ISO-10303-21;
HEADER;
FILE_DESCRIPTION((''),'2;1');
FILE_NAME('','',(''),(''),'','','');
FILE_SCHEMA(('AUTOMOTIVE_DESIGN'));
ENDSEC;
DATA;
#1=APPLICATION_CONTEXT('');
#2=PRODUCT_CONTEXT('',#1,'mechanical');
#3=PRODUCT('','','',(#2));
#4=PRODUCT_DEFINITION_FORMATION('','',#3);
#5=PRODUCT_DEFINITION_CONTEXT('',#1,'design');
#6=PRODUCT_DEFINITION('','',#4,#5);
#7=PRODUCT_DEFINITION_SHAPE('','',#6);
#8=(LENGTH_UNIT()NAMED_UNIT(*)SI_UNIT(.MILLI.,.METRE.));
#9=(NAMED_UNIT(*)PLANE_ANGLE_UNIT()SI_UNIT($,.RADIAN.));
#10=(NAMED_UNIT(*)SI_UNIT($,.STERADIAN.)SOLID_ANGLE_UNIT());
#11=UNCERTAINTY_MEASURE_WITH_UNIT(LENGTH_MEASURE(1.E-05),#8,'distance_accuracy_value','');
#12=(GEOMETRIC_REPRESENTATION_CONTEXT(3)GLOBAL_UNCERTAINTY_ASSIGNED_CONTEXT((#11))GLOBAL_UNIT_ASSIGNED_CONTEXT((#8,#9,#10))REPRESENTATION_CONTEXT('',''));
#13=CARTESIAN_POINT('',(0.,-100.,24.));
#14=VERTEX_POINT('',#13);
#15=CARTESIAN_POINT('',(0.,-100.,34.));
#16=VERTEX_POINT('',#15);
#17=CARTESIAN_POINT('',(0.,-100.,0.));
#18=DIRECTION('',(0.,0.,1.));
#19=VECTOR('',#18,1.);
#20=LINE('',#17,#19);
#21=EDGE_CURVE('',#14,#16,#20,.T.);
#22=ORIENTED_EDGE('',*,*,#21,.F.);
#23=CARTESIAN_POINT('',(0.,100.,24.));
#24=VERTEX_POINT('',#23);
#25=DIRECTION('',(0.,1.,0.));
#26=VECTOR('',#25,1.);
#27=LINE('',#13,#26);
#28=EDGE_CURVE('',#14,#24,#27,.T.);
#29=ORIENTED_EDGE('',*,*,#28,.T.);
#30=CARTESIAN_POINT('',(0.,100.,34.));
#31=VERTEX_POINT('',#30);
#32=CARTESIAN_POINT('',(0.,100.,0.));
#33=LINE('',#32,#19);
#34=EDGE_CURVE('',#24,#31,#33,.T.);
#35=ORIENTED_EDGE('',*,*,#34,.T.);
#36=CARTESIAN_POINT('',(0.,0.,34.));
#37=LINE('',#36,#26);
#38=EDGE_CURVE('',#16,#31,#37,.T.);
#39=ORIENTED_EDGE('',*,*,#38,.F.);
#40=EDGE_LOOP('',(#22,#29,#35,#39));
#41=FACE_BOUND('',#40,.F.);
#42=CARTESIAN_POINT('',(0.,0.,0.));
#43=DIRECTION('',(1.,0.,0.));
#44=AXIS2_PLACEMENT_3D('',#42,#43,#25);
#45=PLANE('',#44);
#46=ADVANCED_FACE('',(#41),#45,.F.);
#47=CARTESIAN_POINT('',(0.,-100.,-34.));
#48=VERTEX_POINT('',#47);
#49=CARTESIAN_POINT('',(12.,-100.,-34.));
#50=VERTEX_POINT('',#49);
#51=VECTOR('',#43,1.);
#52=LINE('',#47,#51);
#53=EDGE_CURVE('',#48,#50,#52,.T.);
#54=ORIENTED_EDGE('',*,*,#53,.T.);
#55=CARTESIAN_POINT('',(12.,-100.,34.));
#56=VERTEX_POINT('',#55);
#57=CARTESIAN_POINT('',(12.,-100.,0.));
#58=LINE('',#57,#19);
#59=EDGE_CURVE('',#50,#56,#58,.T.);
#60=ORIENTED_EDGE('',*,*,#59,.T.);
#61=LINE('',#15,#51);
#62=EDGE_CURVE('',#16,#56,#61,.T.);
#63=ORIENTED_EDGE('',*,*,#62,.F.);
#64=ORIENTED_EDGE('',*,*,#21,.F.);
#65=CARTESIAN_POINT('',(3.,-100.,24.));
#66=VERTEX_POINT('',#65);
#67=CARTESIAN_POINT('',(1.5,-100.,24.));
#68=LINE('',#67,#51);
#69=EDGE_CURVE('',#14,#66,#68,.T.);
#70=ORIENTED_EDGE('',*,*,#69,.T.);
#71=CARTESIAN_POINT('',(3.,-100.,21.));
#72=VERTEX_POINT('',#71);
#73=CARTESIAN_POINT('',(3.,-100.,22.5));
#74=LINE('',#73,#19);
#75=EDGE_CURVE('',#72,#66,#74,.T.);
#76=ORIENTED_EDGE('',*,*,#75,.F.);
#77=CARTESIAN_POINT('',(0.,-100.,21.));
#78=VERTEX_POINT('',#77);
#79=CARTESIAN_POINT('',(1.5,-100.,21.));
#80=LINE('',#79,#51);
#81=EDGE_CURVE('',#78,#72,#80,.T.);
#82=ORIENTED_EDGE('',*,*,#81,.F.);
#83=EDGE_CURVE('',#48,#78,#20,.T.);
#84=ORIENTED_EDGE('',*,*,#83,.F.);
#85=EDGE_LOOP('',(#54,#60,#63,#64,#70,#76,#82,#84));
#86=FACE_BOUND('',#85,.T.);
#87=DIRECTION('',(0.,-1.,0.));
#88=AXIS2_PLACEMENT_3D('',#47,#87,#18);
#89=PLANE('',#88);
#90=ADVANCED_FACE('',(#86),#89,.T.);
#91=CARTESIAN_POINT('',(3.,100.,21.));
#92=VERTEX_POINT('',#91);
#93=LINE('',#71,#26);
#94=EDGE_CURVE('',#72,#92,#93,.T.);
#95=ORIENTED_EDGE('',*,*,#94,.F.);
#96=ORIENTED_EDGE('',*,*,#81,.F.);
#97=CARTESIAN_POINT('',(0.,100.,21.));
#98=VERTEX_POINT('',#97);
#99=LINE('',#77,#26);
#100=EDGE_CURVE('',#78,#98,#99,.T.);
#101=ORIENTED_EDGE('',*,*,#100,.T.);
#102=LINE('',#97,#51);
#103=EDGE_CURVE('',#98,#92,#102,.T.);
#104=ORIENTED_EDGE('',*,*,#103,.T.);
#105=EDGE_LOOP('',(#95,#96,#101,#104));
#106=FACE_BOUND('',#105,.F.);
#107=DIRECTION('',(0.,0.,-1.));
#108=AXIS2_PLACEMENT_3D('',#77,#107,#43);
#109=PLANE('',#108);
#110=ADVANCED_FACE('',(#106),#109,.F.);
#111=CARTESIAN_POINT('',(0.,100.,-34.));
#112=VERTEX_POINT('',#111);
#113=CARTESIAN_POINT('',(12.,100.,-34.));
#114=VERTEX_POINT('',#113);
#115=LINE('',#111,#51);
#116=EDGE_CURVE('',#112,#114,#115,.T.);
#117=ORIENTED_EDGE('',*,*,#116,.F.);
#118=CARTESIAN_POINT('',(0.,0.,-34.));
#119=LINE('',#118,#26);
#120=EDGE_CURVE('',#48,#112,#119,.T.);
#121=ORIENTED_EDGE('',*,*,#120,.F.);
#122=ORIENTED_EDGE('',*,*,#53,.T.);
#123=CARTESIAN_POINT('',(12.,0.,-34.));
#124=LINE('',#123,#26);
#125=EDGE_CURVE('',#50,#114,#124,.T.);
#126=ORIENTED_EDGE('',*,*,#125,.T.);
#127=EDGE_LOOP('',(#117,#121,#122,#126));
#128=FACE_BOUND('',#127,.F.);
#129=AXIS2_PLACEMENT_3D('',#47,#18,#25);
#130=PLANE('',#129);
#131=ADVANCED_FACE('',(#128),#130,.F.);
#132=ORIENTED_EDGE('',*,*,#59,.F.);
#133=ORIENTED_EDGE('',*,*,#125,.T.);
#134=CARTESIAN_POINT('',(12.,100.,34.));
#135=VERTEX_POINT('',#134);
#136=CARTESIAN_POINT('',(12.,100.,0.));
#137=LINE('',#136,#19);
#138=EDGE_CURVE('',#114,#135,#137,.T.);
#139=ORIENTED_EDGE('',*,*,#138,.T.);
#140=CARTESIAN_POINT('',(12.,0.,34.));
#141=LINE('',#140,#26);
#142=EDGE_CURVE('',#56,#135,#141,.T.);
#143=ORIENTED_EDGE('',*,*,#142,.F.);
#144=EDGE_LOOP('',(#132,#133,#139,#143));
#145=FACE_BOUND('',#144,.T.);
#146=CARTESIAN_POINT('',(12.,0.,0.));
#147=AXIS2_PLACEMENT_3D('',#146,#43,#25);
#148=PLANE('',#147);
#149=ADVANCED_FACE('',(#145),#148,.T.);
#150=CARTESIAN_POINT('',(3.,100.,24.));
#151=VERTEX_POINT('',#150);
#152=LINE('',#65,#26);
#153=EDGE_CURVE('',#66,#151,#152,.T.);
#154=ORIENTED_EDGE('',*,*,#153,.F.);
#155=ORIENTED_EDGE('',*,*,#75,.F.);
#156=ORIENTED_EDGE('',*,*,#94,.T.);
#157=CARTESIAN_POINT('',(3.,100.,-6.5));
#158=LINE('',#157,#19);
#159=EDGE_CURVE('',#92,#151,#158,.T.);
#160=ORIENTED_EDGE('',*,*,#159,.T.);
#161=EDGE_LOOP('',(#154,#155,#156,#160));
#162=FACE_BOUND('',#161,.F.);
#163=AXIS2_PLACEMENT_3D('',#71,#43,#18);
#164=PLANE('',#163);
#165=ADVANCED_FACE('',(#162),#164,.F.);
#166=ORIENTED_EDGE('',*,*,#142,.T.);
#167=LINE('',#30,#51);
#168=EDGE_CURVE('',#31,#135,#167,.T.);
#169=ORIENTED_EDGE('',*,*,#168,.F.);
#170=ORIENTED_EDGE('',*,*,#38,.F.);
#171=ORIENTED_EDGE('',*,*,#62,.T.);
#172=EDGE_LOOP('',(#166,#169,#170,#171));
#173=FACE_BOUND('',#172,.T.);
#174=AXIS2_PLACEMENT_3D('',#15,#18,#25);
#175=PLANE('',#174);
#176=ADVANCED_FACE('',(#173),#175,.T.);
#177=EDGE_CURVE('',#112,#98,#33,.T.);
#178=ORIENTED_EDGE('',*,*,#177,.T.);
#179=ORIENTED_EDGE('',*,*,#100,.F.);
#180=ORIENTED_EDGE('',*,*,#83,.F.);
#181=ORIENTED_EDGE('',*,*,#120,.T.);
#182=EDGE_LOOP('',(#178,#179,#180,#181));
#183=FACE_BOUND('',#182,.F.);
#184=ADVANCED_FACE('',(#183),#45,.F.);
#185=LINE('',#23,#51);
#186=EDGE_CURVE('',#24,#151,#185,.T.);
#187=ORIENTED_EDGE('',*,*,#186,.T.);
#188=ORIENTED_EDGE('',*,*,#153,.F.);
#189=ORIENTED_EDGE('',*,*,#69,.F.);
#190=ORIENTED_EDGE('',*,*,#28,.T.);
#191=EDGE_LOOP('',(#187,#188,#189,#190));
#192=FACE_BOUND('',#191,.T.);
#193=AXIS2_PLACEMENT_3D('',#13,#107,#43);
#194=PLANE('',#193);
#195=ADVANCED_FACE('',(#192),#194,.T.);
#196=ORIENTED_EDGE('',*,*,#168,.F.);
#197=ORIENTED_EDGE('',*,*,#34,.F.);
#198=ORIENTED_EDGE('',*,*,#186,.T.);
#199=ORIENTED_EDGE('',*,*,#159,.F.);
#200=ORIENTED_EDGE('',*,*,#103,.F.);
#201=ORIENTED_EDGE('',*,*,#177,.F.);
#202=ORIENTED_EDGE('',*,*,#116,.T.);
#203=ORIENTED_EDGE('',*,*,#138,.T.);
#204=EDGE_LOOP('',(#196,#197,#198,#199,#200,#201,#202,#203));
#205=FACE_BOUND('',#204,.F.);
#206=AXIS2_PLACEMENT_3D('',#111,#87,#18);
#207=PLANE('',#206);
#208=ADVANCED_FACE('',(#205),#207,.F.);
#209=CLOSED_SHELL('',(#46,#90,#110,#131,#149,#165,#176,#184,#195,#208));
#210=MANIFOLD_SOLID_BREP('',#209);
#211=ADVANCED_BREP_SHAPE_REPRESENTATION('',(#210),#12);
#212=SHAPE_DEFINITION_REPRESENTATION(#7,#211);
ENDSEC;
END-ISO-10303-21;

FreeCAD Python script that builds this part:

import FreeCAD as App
import Part
import Sketcher
from FreeCAD import Vector
Q = App.Units.Quantity

doc = App.newDocument("Part")
body = doc.addObject("PartDesign::Body", "Body")

# Sketch on YZ plane
sketch1 = body.newObject("Sketcher::SketchObject", "Sketch")
sketch1.AttachmentSupport = (doc.getObject("YZ_Plane"), [""])
sketch1.MapMode = "FlatFace"
sketch1.addGeometry([
    Part.LineSegment(Vector(-100, 34, 0), Vector(-100, -34, 0)),
    Part.LineSegment(Vector(-100, -34, 0), Vector(100, -34, 0)),
    Part.LineSegment(Vector(100, -34, 0), Vector(100, 34, 0)),
    Part.LineSegment(Vector(100, 34, 0), Vector(-100, 34, 0)),
], False)
sketch1.addConstraint([
    Sketcher.Constraint("Coincident", 0, 2, 1, 1),
    Sketcher.Constraint("Coincident", 1, 2, 2, 1),
    Sketcher.Constraint("Coincident", 2, 2, 3, 1),
    Sketcher.Constraint("Coincident", 3, 2, 0, 1),
    Sketcher.Constraint("Vertical", 0),
    Sketcher.Constraint("Horizontal", 1),
    Sketcher.Constraint("Vertical", 2),
    Sketcher.Constraint("Horizontal", 3),
    Sketcher.Constraint("Symmetric", 0, 2, 2, 2, -1, 1),
    Sketcher.Constraint("DistanceX", 1, 1, 1, 2, Q("200 mm")),
    Sketcher.Constraint("DistanceY", 0, 2, 0, 1, Q("68 mm")),
])
pad1 = body.newObject("PartDesign::Pad", "Pad")
pad1.Profile = sketch1
pad1.Length = 12

# Sketch on XZ plane
sketch2 = body.newObject("Sketcher::SketchObject", "Sketch001")
sketch2.AttachmentSupport = (doc.getObject("XZ_Plane"), [""])
sketch2.MapMode = "FlatFace"
sketch2.AttachmentOffset = App.Placement(Vector(0, 0, 100), App.Rotation())
sketch2.addGeometry([
    Part.LineSegment(Vector(0, 24, 0), Vector(0, 21, 0)),
    Part.LineSegment(Vector(0, 21, 0), Vector(3, 21, 0)),
    Part.LineSegment(Vector(3, 21, 0), Vector(3, 24, 0)),
    Part.LineSegment(Vector(3, 24, 0), Vector(0, 24, 0)),
], False)
sketch2.addConstraint([
    Sketcher.Constraint("Coincident", 0, 2, 1, 1),
    Sketcher.Constraint("Coincident", 1, 2, 2, 1),
    Sketcher.Constraint("Coincident", 2, 2, 3, 1),
    Sketcher.Constraint("Coincident", 3, 2, 0, 1),
    Sketcher.Constraint("Vertical", 0),
    Sketcher.Constraint("Horizontal", 1),
    Sketcher.Constraint("Vertical", 2),
    Sketcher.Constraint("Horizontal", 3),
    Sketcher.Constraint("PointOnObject", 0, 2, -2),
    Sketcher.Constraint("Equal", 3, 0),
    Sketcher.Constraint("DistanceX", 1, 1, 1, 2, Q("3 mm")),
    Sketcher.Constraint("DistanceY", -1, 1, 0, 2, Q("21 mm")),
])
pocket1 = body.newObject("PartDesign::Pocket", "Pocket")
pocket1.Profile = sketch2
pocket1.Length = 32123

# Sketch on XZ plane
sketch3 = body.newObject("Sketcher::SketchObject", "Sketch002")
sketch3.AttachmentSupport = (doc.getObject("XZ_Plane"), [""])
sketch3.MapMode = "FlatFace"
sketch3.AttachmentOffset = App.Placement(Vector(0, 0, 100), App.Rotation())
sketch3.addGeometry([
    Part.LineSegment(Vector(0, 24, 0), Vector(0, 21, 0)),
    Part.LineSegment(Vector(0, 21, 0), Vector(3, 21, 0)),
    Part.LineSegment(Vector(3, 21, 0), Vector(3, 24, 0)),
    Part.LineSegment(Vector(3, 24, 0), Vector(0, 24, 0)),
], False)
sketch3.addConstraint([
    Sketcher.Constraint("Coincident", 0, 2, 1, 1),
    Sketcher.Constraint("Coincident", 1, 2, 2, 1),
    Sketcher.Constraint("Coincident", 2, 2, 3, 1),
    Sketcher.Constraint("Coincident", 3, 2, 0, 1),
    Sketcher.Constraint("Vertical", 0),
    Sketcher.Constraint("Horizontal", 1),
    Sketcher.Constraint("Vertical", 2),
    Sketcher.Constraint("Horizontal", 3),
    Sketcher.Constraint("PointOnObject", 0, 2, -2),
    Sketcher.Constraint("Equal", 3, 0),
    Sketcher.Constraint("DistanceX", 1, 1, 1, 2, Q("3 mm")),
    Sketcher.Constraint("DistanceY", -1, 1, 0, 2, Q("21 mm")),
])
pocket2 = body.newObject("PartDesign::Pocket", "Pocket001")
pocket2.Profile = sketch3
pocket2.Length = 20

doc.recompute()
